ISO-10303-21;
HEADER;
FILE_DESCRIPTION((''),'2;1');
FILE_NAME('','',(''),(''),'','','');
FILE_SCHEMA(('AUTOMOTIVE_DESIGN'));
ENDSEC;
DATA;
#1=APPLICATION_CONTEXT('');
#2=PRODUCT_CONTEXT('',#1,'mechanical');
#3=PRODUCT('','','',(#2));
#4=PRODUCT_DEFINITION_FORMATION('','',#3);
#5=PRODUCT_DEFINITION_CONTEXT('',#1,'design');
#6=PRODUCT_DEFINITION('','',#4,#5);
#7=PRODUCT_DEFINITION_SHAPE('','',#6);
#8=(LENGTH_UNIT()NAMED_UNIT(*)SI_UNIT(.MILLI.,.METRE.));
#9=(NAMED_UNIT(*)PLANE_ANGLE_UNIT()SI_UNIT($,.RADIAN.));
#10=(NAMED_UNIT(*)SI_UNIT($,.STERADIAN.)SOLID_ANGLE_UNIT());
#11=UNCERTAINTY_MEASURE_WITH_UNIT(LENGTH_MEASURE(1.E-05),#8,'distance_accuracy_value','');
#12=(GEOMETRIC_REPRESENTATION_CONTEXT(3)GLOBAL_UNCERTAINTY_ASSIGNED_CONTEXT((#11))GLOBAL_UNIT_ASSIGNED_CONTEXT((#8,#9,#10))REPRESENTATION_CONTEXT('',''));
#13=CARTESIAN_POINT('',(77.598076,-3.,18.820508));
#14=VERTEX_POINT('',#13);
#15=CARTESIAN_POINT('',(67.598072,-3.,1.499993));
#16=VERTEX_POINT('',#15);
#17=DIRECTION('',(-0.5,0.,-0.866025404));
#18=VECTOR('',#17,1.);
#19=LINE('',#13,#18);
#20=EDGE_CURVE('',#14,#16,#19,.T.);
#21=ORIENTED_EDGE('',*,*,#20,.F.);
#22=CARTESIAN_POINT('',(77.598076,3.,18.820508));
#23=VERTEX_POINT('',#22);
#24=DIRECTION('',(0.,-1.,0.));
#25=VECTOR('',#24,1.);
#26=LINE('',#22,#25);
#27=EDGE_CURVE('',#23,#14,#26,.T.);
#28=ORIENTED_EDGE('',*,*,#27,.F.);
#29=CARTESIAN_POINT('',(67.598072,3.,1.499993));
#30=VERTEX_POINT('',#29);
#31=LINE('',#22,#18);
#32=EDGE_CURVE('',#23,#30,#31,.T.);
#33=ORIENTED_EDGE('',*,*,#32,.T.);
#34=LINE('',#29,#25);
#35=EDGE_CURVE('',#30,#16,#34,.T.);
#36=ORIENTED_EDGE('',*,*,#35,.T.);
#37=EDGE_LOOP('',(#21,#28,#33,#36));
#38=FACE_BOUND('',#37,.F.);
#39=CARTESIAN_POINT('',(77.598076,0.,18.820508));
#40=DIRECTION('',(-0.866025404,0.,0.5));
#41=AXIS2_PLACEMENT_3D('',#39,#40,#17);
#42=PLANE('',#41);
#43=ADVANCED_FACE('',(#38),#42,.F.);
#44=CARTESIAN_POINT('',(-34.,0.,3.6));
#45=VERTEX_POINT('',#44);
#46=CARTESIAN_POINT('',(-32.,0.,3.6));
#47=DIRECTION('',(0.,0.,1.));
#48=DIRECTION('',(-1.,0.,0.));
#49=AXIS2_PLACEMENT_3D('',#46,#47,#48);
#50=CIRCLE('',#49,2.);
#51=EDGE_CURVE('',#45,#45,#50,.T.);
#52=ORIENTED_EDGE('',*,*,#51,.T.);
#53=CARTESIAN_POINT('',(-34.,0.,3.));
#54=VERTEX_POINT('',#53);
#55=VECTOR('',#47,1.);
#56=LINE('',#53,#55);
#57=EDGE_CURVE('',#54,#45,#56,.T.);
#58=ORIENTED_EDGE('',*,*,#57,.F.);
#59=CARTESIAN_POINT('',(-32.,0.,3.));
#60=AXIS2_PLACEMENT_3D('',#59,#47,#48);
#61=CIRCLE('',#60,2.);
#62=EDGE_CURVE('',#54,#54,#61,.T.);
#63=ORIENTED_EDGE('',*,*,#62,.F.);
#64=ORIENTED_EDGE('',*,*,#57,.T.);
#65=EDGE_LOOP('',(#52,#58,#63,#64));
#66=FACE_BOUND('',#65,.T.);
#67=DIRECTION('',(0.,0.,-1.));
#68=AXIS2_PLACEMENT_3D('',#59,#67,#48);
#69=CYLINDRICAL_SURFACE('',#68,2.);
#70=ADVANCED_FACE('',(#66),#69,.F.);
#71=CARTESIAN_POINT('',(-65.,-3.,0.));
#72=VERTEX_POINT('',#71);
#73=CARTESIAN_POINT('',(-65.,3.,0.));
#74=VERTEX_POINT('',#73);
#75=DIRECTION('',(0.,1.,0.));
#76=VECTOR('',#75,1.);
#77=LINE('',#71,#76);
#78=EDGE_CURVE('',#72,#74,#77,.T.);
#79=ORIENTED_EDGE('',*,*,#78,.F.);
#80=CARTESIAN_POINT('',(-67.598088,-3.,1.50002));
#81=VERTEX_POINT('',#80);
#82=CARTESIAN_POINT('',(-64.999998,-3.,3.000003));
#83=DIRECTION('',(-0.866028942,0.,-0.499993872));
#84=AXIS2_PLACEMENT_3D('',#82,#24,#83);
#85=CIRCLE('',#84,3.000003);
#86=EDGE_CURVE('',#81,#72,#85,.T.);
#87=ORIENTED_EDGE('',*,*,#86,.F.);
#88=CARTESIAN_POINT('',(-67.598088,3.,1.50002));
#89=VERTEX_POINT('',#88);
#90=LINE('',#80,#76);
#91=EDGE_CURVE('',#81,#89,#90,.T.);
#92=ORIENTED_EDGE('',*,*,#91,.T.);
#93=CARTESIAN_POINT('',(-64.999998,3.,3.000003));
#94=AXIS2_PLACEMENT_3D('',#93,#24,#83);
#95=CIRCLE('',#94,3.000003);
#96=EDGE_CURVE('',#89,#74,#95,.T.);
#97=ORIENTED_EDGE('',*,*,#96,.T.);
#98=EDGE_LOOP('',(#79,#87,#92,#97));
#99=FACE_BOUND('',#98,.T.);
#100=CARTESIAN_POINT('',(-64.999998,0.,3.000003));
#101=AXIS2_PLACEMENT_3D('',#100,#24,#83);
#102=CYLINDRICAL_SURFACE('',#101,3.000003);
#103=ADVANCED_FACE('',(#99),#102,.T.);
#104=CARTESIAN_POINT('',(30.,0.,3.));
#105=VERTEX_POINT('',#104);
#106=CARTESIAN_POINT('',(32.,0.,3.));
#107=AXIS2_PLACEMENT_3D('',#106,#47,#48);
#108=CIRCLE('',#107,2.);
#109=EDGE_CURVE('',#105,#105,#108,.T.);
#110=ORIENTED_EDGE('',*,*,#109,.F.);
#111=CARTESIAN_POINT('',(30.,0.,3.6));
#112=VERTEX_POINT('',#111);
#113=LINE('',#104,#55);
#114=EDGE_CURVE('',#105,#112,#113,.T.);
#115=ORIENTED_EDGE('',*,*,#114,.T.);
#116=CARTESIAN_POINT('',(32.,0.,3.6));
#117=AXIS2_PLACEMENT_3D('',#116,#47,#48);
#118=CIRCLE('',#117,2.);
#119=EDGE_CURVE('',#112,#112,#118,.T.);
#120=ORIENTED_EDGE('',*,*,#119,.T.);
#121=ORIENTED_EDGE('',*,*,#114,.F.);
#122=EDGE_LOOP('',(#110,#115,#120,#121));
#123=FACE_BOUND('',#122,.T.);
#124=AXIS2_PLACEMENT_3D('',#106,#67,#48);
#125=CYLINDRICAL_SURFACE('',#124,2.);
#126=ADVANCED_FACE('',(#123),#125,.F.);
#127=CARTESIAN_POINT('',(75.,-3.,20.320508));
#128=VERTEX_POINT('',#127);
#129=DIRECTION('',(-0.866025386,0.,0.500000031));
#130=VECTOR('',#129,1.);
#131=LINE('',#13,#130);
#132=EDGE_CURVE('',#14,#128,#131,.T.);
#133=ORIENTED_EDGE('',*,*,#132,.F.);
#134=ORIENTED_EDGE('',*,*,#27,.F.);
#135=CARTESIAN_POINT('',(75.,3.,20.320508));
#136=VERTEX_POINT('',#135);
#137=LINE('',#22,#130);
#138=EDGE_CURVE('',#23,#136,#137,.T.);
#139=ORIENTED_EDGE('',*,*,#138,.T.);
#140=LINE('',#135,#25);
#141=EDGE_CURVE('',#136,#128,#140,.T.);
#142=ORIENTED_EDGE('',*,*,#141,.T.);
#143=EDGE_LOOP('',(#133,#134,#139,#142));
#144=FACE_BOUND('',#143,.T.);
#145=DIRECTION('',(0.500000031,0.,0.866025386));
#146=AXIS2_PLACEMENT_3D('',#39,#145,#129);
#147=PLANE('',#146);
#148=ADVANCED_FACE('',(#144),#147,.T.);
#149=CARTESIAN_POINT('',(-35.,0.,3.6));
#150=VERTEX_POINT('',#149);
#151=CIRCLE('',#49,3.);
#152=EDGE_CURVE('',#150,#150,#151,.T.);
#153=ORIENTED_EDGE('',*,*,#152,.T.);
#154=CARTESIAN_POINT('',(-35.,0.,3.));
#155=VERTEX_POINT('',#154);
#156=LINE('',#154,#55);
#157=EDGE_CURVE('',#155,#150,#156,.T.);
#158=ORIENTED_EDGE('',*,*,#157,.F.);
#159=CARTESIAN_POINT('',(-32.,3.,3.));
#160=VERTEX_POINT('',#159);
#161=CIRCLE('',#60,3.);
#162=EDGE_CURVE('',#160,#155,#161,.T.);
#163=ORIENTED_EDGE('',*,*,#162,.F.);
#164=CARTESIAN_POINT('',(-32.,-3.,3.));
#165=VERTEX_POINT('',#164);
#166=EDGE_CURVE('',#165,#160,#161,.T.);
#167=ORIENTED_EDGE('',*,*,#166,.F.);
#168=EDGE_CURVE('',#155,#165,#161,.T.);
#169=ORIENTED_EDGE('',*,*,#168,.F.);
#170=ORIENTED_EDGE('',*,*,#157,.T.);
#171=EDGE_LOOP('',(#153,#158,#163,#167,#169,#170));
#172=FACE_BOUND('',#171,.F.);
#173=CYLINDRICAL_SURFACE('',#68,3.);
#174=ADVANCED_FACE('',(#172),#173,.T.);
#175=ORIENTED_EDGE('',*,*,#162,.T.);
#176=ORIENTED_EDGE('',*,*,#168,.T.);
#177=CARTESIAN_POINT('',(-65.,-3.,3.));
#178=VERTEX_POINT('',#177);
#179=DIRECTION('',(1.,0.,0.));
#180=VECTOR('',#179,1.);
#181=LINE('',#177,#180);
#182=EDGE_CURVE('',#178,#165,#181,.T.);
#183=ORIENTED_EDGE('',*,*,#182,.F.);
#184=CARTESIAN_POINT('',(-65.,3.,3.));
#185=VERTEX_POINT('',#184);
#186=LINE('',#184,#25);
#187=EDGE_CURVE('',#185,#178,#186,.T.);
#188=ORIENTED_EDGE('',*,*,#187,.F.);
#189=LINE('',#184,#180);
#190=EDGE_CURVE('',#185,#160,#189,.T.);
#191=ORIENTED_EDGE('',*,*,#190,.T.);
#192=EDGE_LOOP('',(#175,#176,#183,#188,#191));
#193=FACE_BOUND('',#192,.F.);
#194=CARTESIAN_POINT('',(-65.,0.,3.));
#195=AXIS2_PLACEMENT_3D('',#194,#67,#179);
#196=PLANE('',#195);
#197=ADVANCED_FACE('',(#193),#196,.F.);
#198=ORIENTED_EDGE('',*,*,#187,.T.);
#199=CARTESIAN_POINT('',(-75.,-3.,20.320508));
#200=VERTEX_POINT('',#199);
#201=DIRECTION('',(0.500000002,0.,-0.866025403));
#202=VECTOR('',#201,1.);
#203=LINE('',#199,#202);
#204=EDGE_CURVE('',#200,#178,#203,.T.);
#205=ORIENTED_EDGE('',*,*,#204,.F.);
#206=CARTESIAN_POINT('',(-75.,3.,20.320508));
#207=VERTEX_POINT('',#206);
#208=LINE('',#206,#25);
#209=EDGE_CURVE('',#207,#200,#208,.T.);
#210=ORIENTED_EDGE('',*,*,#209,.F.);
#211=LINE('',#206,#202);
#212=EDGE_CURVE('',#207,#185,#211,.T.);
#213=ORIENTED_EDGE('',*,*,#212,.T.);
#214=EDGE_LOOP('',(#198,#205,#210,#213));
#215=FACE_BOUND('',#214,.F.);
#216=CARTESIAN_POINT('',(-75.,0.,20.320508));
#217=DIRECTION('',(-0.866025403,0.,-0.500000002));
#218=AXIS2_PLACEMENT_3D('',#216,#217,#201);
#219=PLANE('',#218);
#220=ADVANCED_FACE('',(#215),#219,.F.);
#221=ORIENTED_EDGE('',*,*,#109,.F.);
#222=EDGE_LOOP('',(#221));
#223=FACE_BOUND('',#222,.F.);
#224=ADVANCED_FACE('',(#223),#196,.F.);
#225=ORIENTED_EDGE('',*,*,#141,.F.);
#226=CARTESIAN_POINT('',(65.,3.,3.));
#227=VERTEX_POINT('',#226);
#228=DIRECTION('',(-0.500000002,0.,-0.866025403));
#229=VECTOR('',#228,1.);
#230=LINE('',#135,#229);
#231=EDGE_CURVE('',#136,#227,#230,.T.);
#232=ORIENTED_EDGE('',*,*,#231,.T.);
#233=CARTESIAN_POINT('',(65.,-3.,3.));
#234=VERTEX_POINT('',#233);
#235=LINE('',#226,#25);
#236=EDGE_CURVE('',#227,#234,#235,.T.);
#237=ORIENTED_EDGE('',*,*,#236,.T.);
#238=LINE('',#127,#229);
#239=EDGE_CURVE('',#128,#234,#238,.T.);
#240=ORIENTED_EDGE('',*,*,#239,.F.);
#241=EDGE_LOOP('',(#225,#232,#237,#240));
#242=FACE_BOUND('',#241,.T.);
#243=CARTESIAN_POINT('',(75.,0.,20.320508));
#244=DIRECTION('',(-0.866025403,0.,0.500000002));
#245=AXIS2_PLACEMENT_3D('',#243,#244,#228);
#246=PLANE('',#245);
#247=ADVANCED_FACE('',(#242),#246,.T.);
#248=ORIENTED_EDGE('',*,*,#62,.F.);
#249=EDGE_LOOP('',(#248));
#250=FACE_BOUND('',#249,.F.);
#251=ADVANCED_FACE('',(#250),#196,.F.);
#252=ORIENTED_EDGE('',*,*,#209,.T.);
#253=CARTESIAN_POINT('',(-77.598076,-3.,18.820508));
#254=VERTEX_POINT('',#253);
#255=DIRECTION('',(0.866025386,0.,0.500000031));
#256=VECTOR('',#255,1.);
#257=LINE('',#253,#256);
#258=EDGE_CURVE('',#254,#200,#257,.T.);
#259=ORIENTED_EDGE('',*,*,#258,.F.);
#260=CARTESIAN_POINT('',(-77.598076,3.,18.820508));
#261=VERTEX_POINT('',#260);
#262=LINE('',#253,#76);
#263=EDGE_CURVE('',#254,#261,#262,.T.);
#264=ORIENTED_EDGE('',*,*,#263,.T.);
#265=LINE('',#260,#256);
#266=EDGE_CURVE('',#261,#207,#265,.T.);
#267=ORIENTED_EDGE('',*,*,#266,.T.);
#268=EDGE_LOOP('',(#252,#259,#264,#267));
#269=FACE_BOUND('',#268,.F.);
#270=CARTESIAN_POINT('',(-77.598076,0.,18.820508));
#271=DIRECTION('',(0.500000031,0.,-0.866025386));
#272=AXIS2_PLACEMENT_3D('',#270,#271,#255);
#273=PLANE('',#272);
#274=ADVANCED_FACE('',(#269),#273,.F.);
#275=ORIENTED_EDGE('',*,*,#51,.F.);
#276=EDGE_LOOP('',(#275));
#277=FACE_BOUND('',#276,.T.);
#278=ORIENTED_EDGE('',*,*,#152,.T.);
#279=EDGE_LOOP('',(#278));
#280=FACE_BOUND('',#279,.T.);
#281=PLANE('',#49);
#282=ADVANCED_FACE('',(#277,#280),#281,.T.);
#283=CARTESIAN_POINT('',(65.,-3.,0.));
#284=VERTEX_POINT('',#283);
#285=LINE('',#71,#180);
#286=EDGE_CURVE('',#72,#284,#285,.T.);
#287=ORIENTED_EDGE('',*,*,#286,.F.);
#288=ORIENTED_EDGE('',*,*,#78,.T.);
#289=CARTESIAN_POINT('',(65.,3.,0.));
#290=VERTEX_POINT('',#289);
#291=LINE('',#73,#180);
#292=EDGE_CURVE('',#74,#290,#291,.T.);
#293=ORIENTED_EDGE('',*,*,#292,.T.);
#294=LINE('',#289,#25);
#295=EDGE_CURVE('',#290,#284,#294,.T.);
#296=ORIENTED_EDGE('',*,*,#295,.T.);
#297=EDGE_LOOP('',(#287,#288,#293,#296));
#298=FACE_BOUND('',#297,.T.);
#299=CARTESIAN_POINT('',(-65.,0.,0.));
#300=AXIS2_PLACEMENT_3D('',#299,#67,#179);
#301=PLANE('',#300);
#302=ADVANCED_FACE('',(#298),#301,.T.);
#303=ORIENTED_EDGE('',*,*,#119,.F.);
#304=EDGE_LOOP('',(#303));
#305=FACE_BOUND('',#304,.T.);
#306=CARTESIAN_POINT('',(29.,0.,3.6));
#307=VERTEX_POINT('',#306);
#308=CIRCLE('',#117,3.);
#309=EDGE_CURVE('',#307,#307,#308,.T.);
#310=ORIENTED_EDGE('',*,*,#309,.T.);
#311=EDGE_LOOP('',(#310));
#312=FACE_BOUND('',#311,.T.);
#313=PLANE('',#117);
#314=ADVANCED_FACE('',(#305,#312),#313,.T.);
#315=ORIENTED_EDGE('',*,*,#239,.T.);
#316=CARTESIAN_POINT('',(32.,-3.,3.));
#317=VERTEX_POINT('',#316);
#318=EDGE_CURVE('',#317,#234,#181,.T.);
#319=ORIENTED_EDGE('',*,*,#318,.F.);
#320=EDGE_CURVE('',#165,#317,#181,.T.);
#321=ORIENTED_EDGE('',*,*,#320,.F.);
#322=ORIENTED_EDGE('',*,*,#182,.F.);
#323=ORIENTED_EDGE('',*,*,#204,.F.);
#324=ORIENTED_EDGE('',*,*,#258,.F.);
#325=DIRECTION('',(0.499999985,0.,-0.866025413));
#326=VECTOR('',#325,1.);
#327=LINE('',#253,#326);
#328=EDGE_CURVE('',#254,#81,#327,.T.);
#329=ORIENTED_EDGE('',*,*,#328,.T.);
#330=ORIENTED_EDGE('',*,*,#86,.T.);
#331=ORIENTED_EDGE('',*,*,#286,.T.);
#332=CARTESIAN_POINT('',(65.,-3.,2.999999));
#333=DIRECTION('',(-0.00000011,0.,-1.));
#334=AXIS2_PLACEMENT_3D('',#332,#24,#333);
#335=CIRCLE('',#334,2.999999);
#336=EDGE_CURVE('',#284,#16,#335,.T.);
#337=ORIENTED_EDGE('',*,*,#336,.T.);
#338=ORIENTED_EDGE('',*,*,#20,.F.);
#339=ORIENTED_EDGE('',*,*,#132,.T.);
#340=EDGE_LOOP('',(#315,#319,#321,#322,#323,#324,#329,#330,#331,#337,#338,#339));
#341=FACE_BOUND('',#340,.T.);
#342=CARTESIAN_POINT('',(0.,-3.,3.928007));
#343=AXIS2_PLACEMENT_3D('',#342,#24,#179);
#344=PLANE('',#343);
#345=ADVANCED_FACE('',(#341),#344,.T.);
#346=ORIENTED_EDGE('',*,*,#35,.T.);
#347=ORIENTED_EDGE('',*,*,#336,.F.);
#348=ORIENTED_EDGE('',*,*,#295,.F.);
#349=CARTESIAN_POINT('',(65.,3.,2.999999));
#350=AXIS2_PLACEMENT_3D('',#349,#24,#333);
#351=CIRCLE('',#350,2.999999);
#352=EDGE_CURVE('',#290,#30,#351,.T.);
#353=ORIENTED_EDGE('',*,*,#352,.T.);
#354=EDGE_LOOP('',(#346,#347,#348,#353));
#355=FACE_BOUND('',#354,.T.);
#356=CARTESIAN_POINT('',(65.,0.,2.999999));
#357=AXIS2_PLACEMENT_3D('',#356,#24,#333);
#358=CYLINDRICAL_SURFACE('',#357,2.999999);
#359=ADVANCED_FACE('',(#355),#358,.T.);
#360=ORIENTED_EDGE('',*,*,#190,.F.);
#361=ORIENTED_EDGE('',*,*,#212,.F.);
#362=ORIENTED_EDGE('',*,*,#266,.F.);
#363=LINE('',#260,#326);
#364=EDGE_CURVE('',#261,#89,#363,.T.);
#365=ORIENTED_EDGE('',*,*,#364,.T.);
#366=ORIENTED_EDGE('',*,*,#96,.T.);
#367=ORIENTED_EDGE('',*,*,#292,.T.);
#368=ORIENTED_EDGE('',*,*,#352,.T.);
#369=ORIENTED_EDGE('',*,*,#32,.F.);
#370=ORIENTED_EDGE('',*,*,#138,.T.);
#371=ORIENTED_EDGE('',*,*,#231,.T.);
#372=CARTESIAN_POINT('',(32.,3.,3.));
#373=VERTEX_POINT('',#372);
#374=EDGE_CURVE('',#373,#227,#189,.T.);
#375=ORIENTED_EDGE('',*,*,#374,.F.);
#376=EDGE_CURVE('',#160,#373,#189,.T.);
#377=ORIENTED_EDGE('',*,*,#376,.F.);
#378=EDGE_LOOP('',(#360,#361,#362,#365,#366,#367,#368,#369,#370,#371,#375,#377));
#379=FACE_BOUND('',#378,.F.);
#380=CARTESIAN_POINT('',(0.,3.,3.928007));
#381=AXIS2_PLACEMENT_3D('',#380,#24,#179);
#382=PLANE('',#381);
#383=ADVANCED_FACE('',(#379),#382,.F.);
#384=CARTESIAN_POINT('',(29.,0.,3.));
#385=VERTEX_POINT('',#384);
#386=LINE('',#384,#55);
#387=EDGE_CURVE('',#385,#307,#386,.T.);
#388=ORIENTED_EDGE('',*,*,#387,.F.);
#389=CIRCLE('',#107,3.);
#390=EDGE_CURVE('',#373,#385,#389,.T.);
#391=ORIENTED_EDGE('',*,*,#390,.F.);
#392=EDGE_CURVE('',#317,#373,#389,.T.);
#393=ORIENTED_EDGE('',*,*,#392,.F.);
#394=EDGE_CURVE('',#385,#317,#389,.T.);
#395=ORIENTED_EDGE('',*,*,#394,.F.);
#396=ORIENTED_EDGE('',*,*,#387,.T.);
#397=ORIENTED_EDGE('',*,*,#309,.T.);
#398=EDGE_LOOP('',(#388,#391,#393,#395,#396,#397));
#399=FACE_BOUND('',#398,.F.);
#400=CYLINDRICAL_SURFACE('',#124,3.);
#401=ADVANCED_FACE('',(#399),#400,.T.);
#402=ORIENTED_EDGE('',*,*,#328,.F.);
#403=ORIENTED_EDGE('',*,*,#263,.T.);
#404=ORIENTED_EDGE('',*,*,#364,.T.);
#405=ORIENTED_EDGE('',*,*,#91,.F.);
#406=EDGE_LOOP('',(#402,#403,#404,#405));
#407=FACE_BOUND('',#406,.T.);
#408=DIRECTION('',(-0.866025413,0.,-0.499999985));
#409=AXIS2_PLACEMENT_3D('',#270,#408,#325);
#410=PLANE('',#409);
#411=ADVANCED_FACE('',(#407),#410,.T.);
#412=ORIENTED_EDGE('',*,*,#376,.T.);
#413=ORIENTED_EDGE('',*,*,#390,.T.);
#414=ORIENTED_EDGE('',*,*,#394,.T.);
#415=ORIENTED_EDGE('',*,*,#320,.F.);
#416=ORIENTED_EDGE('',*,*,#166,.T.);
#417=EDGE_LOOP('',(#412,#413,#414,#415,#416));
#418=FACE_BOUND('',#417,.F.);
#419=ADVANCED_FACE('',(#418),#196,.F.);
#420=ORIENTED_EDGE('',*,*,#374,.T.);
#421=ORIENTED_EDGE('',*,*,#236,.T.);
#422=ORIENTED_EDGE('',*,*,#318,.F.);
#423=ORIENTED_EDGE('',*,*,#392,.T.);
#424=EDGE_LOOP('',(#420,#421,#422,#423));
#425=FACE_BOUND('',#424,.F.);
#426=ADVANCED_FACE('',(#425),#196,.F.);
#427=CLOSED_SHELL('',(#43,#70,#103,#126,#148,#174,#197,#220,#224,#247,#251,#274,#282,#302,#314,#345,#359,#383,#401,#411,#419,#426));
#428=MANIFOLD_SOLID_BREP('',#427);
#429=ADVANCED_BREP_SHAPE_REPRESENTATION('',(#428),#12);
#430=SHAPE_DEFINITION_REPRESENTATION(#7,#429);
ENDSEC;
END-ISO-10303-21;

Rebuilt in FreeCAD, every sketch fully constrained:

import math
import FreeCAD as App
import Part
import Sketcher

V = App.Vector
Q = App.Units.Quantity

doc = App.newDocument("Part")
body = doc.addObject("PartDesign::Body", "Body")

# Sketch on XZ plane
sketch1 = doc.addObject("Sketcher::SketchObject", "Sketch")
body.addObject(sketch1)
sketch1.AttachmentSupport = (doc.XZ_Plane, [""])
sketch1.MapMode = "FlatFace"
sketch1.addGeometry([
    Part.LineSegment(V(-65, 0, 0), V(65, 0, 0)),  # 0
    Part.ArcOfCircle(Part.Circle(V(65, 2.999999, 0), V(0, 0, 1), 2.999999), math.radians(-90.000006), math.radians(-30.000145)),  # 1
    Part.LineSegment(V(67.598072, 1.499993, 0), V(77.598076, 18.820508, 0)),  # 2
    Part.LineSegment(V(77.598076, 18.820508, 0), V(75, 20.320508, 0)),  # 3
    Part.LineSegment(V(75, 20.320508, 0), V(65, 3, 0)),  # 4
    Part.LineSegment(V(65, 3, 0), V(-65, 3, 0)),  # 5
    Part.LineSegment(V(-65, 3, 0), V(-75, 20.320508, 0)),  # 6
    Part.LineSegment(V(-75, 20.320508, 0), V(-77.598076, 18.820508, 0)),  # 7
    Part.LineSegment(V(-77.598076, 18.820508, 0), V(-67.598088, 1.50002, 0)),  # 8
    Part.ArcOfCircle(Part.Circle(V(-64.999998, 3.000003, 0), V(0, 0, 1), 3.000003), math.radians(-150.000405), math.radians(-90.000031)),  # 9
], False)
sketch1.addConstraint([
    Sketcher.Constraint("Tangent", 0, 2, 1, 1),
    Sketcher.Constraint("Coincident", 1, 2, 2, 1),
    Sketcher.Constraint("Coincident", 2, 2, 3, 1),
    Sketcher.Constraint("Coincident", 3, 2, 4, 1),
    Sketcher.Constraint("Coincident", 4, 2, 5, 1),
    Sketcher.Constraint("Coincident", 5, 2, 6, 1),
    Sketcher.Constraint("Coincident", 6, 2, 7, 1),
    Sketcher.Constraint("Coincident", 7, 2, 8, 1),
    Sketcher.Constraint("Coincident", 8, 2, 9, 1),
    Sketcher.Constraint("Tangent", 9, 2, 0, 1),
    Sketcher.Constraint("Horizontal", 0),
    Sketcher.Constraint("Horizontal", 5),
    Sketcher.Constraint("Coincident", 4, 2, 1, 3),
    Sketcher.Constraint("Coincident", 5, 2, 9, 3),
    Sketcher.Constraint("Symmetric", 0, 2, 9, 2, -1, 1),
    Sketcher.Constraint("Symmetric", 3, 2, 6, 2, -2),
    Sketcher.Constraint("Symmetric", 2, 2, 7, 2, -2),
    Sketcher.Constraint("Perpendicular", 2, 3),
    Sketcher.Constraint("Perpendicular", 3, 4),
    Sketcher.Constraint("Radius", 1, Q("2.999999 mm")),
    Sketcher.Constraint("DistanceX", 0, 1, 0, 2, Q("130 mm")),
    Sketcher.Constraint("Angle", 2, Q("60 deg")),
    Sketcher.Constraint("Distance", 4, Q("20 mm")),
    Sketcher.Constraint("DistanceX", -1, 1, 1, 2, Q("67.598072 mm")),
    Sketcher.Constraint("DistanceX", 8, 2, -1, 1, Q("67.598088 mm")),
])
pad1 = doc.addObject("PartDesign::Pad", "Pad")
body.addObject(pad1)
pad1.Profile = sketch1
pad1.Length = 6
pad1.Midplane = True

# Sketch on XY plane
sketch2 = doc.addObject("Sketcher::SketchObject", "Sketch001")
body.addObject(sketch2)
sketch2.AttachmentSupport = (doc.XY_Plane, [""])
sketch2.MapMode = "FlatFace"
sketch2.AttachmentOffset = App.Placement(V(0, 0, 3), App.Rotation())
sketch2.addGeometry([
    Part.Circle(V(32, 0, 0), V(0, 0, 1), 3),
    Part.Circle(V(32, 0, 0), V(0, 0, 1), 2),
    Part.Circle(V(-32, 0, 0), V(0, 0, 1), 3),
    Part.Circle(V(-32, 0, 0), V(0, 0, 1), 2),
], False)
sketch2.addConstraint([
    Sketcher.Constraint("Coincident", 1, 3, 0, 3),
    Sketcher.Constraint("Coincident", 3, 3, 2, 3),
    Sketcher.Constraint("Equal", 0, 2),
    Sketcher.Constraint("Equal", 1, 3),
    Sketcher.Constraint("Symmetric", 0, 3, 2, 3, -1, 1),
    Sketcher.Constraint("PointOnObject", 0, 3, -1),
    Sketcher.Constraint("Diameter", 0, Q("6 mm")),
    Sketcher.Constraint("Diameter", 1, Q("4 mm")),
    Sketcher.Constraint("DistanceX", -1, 1, 0, 3, Q("32 mm")),
])
pad2 = doc.addObject("PartDesign::Pad", "Pad001")
body.addObject(pad2)
pad2.Profile = sketch2
pad2.Length = 0.6

doc.recompute()
